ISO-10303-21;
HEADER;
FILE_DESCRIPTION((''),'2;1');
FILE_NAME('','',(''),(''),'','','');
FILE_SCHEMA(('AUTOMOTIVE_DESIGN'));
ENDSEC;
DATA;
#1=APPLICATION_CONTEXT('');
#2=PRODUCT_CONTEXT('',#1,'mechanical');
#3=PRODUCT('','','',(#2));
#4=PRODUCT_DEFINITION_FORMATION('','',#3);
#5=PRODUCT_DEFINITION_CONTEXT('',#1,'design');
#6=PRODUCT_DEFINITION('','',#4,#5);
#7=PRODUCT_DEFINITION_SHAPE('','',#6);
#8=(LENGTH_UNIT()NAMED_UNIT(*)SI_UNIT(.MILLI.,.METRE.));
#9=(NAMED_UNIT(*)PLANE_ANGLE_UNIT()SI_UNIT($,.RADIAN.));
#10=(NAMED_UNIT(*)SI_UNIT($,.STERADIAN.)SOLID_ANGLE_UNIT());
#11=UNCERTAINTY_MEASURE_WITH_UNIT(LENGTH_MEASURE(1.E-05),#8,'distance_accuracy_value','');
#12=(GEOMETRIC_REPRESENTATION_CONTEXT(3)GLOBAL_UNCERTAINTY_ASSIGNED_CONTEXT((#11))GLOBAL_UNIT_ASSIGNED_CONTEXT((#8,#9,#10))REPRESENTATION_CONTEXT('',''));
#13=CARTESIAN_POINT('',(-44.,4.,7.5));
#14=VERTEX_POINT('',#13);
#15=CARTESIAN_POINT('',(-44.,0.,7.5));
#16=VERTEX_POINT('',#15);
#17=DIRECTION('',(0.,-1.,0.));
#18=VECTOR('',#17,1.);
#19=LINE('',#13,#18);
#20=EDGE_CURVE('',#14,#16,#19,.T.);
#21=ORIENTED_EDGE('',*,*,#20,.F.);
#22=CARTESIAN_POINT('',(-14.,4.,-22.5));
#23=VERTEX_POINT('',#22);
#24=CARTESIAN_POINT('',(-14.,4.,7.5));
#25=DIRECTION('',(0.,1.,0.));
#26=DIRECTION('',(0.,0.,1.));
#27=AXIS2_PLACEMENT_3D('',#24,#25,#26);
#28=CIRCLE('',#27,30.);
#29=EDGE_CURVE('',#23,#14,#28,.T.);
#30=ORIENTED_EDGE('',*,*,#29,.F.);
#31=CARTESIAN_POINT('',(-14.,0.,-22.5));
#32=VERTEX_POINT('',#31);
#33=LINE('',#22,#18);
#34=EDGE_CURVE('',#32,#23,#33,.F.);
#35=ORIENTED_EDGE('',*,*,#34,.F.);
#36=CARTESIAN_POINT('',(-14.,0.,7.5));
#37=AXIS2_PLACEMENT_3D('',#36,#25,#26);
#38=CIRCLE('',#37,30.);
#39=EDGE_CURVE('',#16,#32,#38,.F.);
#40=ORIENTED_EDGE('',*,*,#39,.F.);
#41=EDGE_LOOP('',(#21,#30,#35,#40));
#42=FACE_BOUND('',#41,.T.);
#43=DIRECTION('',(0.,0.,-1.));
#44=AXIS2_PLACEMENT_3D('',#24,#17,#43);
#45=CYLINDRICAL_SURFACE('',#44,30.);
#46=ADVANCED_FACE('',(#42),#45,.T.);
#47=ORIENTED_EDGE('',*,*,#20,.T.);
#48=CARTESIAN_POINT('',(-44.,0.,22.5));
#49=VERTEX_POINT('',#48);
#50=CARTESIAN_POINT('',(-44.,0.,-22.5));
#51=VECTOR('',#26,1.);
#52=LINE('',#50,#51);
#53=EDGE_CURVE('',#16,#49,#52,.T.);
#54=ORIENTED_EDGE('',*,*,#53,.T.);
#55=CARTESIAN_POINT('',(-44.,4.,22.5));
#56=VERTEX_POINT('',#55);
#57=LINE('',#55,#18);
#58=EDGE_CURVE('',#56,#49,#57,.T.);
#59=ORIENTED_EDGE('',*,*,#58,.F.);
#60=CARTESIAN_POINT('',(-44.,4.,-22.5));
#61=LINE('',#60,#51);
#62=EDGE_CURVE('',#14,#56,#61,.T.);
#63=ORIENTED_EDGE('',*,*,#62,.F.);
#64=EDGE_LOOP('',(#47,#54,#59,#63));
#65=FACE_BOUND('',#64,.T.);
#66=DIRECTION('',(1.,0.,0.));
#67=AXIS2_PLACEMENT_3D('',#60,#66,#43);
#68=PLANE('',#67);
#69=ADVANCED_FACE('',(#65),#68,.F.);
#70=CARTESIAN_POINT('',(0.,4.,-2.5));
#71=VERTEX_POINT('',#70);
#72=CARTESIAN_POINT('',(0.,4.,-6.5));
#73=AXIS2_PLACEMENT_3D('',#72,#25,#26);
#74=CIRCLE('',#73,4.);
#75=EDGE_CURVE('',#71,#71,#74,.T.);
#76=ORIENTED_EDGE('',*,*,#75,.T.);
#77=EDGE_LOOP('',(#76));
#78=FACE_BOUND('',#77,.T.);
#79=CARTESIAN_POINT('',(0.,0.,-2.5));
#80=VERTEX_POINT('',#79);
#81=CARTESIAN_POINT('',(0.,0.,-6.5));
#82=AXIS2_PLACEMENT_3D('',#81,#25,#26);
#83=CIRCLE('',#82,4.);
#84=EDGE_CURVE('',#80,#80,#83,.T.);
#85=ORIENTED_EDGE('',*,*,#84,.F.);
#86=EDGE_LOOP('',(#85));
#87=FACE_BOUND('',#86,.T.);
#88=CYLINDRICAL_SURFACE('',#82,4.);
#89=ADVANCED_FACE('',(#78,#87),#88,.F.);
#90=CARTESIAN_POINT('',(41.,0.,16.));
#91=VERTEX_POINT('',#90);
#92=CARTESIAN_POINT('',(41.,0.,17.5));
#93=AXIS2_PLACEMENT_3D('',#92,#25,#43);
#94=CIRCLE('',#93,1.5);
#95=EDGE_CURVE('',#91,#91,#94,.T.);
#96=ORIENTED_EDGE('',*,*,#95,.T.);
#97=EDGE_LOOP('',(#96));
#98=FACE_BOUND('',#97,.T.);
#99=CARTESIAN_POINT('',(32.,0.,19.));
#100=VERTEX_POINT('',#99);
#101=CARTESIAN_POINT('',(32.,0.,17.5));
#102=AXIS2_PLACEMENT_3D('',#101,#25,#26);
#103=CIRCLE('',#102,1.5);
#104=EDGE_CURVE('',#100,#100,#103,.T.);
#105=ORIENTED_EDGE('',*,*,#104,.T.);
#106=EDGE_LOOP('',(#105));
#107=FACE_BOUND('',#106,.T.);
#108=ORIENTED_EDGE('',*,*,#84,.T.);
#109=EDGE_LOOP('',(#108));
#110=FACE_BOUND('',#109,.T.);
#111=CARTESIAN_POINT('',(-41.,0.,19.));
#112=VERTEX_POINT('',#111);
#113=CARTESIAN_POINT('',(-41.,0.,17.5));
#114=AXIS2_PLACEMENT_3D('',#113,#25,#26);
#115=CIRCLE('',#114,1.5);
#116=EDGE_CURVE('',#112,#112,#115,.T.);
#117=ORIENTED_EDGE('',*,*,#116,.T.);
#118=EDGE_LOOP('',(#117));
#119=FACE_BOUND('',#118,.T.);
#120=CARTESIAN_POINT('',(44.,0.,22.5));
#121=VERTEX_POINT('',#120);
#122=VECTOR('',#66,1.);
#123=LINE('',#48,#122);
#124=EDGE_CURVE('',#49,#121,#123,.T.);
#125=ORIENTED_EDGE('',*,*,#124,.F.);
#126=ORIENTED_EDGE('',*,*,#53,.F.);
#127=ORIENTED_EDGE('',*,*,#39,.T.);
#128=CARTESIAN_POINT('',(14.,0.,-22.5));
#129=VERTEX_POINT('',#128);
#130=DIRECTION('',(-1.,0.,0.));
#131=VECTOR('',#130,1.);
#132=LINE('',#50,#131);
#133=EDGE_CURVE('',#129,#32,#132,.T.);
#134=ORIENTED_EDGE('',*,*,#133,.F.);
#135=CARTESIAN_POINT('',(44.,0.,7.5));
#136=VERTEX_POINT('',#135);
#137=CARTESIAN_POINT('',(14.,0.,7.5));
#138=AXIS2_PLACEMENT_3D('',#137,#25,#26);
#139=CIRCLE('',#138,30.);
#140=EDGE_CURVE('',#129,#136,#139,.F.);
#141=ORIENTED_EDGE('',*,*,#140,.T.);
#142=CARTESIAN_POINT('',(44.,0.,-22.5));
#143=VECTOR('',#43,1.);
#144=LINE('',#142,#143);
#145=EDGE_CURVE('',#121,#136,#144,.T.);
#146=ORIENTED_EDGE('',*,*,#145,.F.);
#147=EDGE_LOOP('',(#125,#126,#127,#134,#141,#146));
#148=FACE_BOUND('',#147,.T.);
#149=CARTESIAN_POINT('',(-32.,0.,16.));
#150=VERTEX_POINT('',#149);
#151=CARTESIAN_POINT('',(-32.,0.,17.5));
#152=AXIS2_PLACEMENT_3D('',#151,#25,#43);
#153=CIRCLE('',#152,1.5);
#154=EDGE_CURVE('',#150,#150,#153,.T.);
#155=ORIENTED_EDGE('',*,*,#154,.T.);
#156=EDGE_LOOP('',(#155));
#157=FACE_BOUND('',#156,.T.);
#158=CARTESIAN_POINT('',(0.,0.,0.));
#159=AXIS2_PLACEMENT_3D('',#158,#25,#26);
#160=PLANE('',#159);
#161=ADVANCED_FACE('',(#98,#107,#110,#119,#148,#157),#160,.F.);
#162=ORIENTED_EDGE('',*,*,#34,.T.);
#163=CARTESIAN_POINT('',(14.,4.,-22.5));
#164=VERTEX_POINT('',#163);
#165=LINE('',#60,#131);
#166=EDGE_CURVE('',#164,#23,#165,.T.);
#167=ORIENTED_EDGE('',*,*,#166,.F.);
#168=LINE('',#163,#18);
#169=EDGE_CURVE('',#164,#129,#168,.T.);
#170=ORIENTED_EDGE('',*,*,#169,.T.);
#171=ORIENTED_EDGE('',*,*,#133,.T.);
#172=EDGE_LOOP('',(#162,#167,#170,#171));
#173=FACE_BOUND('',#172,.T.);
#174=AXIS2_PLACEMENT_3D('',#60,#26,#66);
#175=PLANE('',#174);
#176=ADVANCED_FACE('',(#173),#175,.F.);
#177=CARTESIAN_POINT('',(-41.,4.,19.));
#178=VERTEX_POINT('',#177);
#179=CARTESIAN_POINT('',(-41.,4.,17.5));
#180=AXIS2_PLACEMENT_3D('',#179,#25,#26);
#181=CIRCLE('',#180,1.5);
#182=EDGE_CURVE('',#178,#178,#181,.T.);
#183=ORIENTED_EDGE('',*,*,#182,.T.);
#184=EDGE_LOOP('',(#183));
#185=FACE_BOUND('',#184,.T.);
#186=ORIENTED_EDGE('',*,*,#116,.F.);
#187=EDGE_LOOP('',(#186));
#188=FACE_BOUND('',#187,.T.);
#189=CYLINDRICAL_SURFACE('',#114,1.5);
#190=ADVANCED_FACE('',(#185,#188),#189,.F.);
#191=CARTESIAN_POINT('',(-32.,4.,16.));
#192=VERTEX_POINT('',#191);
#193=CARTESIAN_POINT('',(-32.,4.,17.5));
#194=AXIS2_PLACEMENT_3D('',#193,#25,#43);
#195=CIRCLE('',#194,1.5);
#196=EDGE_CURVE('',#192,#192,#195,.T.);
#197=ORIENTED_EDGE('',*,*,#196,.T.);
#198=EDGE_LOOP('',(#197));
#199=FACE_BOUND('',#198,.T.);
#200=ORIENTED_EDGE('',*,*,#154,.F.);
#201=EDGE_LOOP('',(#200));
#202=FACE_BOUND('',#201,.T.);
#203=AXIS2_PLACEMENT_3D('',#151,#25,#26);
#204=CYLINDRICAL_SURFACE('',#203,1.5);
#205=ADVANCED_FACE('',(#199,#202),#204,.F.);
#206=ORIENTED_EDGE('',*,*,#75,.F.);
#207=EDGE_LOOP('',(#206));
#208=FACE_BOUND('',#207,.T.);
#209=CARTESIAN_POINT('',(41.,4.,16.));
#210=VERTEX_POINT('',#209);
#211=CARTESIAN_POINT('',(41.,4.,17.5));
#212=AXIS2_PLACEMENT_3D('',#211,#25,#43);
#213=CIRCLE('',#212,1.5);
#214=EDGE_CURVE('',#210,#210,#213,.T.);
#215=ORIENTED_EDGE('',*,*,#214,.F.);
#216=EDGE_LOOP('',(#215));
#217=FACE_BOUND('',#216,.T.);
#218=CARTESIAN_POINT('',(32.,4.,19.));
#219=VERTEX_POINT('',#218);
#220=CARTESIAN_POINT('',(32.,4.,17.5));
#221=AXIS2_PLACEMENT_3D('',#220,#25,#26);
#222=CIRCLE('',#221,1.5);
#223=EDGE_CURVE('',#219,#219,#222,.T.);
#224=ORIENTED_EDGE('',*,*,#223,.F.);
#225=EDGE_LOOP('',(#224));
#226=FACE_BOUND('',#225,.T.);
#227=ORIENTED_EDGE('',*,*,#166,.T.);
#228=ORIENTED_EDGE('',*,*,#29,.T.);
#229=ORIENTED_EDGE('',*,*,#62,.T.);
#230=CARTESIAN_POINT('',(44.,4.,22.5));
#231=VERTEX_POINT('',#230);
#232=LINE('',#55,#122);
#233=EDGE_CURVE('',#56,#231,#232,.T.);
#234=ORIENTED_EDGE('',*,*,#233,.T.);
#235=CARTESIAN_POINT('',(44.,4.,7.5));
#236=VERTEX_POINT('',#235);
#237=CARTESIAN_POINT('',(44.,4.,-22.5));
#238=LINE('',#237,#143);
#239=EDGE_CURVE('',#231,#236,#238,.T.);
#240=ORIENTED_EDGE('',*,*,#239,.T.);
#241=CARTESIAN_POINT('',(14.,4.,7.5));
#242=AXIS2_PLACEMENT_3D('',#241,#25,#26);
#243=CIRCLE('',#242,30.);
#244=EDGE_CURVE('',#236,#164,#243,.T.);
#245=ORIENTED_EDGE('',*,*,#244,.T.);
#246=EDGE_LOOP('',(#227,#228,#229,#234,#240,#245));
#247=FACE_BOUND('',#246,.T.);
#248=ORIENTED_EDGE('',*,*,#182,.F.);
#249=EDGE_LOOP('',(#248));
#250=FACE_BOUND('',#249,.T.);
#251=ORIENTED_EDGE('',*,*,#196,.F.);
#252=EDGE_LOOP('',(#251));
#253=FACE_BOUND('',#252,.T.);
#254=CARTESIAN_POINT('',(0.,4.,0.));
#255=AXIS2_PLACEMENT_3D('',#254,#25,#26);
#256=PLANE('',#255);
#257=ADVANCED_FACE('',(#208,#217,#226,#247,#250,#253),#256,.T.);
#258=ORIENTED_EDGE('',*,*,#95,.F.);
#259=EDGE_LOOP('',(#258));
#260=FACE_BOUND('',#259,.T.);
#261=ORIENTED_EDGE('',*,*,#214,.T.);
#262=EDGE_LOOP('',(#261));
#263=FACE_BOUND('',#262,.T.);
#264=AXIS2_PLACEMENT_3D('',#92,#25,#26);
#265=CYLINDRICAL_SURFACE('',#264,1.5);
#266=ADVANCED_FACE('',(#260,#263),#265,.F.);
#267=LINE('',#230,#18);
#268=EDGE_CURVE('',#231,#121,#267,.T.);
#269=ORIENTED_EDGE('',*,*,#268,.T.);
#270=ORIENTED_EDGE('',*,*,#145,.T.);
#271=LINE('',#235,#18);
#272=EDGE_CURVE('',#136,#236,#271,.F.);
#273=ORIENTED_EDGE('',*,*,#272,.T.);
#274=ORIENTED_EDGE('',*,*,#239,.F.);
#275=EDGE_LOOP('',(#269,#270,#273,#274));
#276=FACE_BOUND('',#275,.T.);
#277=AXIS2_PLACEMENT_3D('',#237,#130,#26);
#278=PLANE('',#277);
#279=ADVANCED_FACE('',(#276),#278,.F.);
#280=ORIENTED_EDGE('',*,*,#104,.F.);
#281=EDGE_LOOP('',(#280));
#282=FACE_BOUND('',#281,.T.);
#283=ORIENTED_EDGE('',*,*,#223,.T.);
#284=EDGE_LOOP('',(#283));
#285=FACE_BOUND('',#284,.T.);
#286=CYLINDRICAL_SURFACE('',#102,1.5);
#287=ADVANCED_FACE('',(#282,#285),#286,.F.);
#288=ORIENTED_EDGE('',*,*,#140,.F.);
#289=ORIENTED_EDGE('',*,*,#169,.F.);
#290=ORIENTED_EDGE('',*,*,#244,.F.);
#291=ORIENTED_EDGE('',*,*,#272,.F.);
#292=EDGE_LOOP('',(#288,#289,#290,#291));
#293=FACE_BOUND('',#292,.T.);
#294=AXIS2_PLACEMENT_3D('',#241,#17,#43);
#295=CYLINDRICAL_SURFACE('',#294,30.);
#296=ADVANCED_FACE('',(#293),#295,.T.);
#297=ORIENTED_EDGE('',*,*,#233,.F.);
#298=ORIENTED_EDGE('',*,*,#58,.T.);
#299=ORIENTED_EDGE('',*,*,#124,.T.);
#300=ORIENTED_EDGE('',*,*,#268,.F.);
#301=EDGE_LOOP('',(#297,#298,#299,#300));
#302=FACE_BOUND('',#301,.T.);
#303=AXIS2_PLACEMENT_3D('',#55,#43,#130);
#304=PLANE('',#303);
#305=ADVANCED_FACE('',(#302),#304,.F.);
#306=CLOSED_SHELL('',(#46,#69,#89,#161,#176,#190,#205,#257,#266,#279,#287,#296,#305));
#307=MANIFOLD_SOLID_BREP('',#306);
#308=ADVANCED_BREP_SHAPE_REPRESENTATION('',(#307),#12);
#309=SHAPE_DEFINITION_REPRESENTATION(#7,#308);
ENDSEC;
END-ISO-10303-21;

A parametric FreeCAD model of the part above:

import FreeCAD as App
import Part
import Sketcher

V = App.Vector
Q = App.Units.Quantity


def edges_at(feature, points):
    """Names of the edges that pass closest to the given points."""
    edges = feature.Shape.Edges
    near = lambda p: min(range(len(edges)), key=lambda i: edges[i].distToShape(Part.Vertex(*p))[0])
    return sorted({f"Edge{near(p) + 1}" for p in points})

doc = App.newDocument("Part")
body = doc.addObject("PartDesign::Body", "Body")

sketch1 = body.newObject("Sketcher::SketchObject", "Sketch")
sketch1.AttachmentSupport = (doc.getObject("XZ_Plane"), [""])
sketch1.MapMode = "FlatFace"
sketch1.addGeometry(Part.LineSegment(V(-44, -22.5, 0), V(-44, 22.5, 0)), False)
sketch1.addGeometry(Part.LineSegment(V(-44, 22.5, 0), V(44, 22.5, 0)), False)
sketch1.addGeometry(Part.LineSegment(V(44, 22.5, 0), V(44, -22.5, 0)), False)
sketch1.addGeometry(Part.LineSegment(V(44, -22.5, 0), V(-44, -22.5, 0)), False)
sketch1.addConstraint(Sketcher.Constraint("Coincident", 0, 2, 1, 1))
sketch1.addConstraint(Sketcher.Constraint("Coincident", 1, 2, 2, 1))
sketch1.addConstraint(Sketcher.Constraint("Coincident", 2, 2, 3, 1))
sketch1.addConstraint(Sketcher.Constraint("Coincident", 3, 2, 0, 1))
sketch1.addConstraint(Sketcher.Constraint("Vertical", 0))
sketch1.addConstraint(Sketcher.Constraint("Horizontal", 1))
sketch1.addConstraint(Sketcher.Constraint("Vertical", 2))
sketch1.addConstraint(Sketcher.Constraint("Horizontal", 3))
sketch1.addConstraint(Sketcher.Constraint("Symmetric", 0, 2, 2, 2, -1, 1))
sketch1.addConstraint(Sketcher.Constraint("DistanceX", 1, 1, 1, 2, Q("88 mm")))
sketch1.addConstraint(Sketcher.Constraint("DistanceY", 0, 1, 0, 2, Q("45 mm")))
pad1 = body.newObject("PartDesign::Pad", "Pad")
pad1.Profile = sketch1
pad1.Length = 4
pad1.Reversed = True

sketch2 = body.newObject("Sketcher::SketchObject", "Sketch001")
sketch2.AttachmentSupport = (doc.getObject("XZ_Plane"), [""])
sketch2.MapMode = "FlatFace"
sketch2.AttachmentOffset = App.Placement(V(0, 0, -4), App.Rotation())
sketch2.addGeometry(Part.Circle(V(0, -6.5, 0), V(0, 0, 1), 4), False)
sketch2.addConstraint(Sketcher.Constraint("PointOnObject", 0, 3, -2))
sketch2.addConstraint(Sketcher.Constraint("Diameter", 0, Q("8 mm")))
sketch2.addConstraint(Sketcher.Constraint("DistanceY", 0, 3, -1, 1, Q("6.5 mm")))
pocket1 = body.newObject("PartDesign::Pocket", "Pocket")
pocket1.Profile = sketch2
pocket1.Length = 4
pocket1.Reversed = True

sketch3 = body.newObject("Sketcher::SketchObject", "Sketch002")
sketch3.AttachmentSupport = (doc.getObject("XZ_Plane"), [""])
sketch3.MapMode = "FlatFace"
sketch3.AttachmentOffset = App.Placement(V(0, 0, -4), App.Rotation())
sketch3.addGeometry(Part.Circle(V(-41, 17.5, 0), V(0, 0, 1), 1.5), False)
sketch3.addGeometry(Part.Circle(V(-32, 17.5, 0), V(0, 0, 1), 1.5), False)
sketch3.addGeometry(Part.Circle(V(32, 17.5, 0), V(0, 0, 1), 1.5), False)
sketch3.addGeometry(Part.Circle(V(41, 17.5, 0), V(0, 0, 1), 1.5), False)
sketch3.addConstraint(Sketcher.Constraint("Equal", 0, 1))
sketch3.addConstraint(Sketcher.Constraint("Equal", 1, 2))
sketch3.addConstraint(Sketcher.Constraint("Equal", 2, 3))
sketch3.addConstraint(Sketcher.Constraint("Symmetric", 1, 3, 2, 3, -2))
sketch3.addConstraint(Sketcher.Constraint("Symmetric", 0, 3, 3, 3, -2))
sketch3.addConstraint(Sketcher.Constraint("Horizontal", 0, 3, 1, 3))
sketch3.addConstraint(Sketcher.Constraint("Diameter", 0, Q("3 mm")))
sketch3.addConstraint(Sketcher.Constraint("DistanceX", 0, 3, -1, 1, Q("41 mm")))
sketch3.addConstraint(Sketcher.Constraint("DistanceX", 1, 3, -1, 1, Q("32 mm")))
sketch3.addConstraint(Sketcher.Constraint("DistanceY", -1, 1, 0, 3, Q("17.5 mm")))
pocket2 = body.newObject("PartDesign::Pocket", "Pocket001")
pocket2.Profile = sketch3
pocket2.Type = "ThroughAll"
pocket2.Reversed = True
doc.recompute()

fillet = body.newObject("PartDesign::Fillet", "Fillet")
fillet.Base = (pocket2, edges_at(pocket2, [(-44, 2, -22.5), (44, 2, -22.5)]))
fillet.Radius = 30

doc.recompute()
